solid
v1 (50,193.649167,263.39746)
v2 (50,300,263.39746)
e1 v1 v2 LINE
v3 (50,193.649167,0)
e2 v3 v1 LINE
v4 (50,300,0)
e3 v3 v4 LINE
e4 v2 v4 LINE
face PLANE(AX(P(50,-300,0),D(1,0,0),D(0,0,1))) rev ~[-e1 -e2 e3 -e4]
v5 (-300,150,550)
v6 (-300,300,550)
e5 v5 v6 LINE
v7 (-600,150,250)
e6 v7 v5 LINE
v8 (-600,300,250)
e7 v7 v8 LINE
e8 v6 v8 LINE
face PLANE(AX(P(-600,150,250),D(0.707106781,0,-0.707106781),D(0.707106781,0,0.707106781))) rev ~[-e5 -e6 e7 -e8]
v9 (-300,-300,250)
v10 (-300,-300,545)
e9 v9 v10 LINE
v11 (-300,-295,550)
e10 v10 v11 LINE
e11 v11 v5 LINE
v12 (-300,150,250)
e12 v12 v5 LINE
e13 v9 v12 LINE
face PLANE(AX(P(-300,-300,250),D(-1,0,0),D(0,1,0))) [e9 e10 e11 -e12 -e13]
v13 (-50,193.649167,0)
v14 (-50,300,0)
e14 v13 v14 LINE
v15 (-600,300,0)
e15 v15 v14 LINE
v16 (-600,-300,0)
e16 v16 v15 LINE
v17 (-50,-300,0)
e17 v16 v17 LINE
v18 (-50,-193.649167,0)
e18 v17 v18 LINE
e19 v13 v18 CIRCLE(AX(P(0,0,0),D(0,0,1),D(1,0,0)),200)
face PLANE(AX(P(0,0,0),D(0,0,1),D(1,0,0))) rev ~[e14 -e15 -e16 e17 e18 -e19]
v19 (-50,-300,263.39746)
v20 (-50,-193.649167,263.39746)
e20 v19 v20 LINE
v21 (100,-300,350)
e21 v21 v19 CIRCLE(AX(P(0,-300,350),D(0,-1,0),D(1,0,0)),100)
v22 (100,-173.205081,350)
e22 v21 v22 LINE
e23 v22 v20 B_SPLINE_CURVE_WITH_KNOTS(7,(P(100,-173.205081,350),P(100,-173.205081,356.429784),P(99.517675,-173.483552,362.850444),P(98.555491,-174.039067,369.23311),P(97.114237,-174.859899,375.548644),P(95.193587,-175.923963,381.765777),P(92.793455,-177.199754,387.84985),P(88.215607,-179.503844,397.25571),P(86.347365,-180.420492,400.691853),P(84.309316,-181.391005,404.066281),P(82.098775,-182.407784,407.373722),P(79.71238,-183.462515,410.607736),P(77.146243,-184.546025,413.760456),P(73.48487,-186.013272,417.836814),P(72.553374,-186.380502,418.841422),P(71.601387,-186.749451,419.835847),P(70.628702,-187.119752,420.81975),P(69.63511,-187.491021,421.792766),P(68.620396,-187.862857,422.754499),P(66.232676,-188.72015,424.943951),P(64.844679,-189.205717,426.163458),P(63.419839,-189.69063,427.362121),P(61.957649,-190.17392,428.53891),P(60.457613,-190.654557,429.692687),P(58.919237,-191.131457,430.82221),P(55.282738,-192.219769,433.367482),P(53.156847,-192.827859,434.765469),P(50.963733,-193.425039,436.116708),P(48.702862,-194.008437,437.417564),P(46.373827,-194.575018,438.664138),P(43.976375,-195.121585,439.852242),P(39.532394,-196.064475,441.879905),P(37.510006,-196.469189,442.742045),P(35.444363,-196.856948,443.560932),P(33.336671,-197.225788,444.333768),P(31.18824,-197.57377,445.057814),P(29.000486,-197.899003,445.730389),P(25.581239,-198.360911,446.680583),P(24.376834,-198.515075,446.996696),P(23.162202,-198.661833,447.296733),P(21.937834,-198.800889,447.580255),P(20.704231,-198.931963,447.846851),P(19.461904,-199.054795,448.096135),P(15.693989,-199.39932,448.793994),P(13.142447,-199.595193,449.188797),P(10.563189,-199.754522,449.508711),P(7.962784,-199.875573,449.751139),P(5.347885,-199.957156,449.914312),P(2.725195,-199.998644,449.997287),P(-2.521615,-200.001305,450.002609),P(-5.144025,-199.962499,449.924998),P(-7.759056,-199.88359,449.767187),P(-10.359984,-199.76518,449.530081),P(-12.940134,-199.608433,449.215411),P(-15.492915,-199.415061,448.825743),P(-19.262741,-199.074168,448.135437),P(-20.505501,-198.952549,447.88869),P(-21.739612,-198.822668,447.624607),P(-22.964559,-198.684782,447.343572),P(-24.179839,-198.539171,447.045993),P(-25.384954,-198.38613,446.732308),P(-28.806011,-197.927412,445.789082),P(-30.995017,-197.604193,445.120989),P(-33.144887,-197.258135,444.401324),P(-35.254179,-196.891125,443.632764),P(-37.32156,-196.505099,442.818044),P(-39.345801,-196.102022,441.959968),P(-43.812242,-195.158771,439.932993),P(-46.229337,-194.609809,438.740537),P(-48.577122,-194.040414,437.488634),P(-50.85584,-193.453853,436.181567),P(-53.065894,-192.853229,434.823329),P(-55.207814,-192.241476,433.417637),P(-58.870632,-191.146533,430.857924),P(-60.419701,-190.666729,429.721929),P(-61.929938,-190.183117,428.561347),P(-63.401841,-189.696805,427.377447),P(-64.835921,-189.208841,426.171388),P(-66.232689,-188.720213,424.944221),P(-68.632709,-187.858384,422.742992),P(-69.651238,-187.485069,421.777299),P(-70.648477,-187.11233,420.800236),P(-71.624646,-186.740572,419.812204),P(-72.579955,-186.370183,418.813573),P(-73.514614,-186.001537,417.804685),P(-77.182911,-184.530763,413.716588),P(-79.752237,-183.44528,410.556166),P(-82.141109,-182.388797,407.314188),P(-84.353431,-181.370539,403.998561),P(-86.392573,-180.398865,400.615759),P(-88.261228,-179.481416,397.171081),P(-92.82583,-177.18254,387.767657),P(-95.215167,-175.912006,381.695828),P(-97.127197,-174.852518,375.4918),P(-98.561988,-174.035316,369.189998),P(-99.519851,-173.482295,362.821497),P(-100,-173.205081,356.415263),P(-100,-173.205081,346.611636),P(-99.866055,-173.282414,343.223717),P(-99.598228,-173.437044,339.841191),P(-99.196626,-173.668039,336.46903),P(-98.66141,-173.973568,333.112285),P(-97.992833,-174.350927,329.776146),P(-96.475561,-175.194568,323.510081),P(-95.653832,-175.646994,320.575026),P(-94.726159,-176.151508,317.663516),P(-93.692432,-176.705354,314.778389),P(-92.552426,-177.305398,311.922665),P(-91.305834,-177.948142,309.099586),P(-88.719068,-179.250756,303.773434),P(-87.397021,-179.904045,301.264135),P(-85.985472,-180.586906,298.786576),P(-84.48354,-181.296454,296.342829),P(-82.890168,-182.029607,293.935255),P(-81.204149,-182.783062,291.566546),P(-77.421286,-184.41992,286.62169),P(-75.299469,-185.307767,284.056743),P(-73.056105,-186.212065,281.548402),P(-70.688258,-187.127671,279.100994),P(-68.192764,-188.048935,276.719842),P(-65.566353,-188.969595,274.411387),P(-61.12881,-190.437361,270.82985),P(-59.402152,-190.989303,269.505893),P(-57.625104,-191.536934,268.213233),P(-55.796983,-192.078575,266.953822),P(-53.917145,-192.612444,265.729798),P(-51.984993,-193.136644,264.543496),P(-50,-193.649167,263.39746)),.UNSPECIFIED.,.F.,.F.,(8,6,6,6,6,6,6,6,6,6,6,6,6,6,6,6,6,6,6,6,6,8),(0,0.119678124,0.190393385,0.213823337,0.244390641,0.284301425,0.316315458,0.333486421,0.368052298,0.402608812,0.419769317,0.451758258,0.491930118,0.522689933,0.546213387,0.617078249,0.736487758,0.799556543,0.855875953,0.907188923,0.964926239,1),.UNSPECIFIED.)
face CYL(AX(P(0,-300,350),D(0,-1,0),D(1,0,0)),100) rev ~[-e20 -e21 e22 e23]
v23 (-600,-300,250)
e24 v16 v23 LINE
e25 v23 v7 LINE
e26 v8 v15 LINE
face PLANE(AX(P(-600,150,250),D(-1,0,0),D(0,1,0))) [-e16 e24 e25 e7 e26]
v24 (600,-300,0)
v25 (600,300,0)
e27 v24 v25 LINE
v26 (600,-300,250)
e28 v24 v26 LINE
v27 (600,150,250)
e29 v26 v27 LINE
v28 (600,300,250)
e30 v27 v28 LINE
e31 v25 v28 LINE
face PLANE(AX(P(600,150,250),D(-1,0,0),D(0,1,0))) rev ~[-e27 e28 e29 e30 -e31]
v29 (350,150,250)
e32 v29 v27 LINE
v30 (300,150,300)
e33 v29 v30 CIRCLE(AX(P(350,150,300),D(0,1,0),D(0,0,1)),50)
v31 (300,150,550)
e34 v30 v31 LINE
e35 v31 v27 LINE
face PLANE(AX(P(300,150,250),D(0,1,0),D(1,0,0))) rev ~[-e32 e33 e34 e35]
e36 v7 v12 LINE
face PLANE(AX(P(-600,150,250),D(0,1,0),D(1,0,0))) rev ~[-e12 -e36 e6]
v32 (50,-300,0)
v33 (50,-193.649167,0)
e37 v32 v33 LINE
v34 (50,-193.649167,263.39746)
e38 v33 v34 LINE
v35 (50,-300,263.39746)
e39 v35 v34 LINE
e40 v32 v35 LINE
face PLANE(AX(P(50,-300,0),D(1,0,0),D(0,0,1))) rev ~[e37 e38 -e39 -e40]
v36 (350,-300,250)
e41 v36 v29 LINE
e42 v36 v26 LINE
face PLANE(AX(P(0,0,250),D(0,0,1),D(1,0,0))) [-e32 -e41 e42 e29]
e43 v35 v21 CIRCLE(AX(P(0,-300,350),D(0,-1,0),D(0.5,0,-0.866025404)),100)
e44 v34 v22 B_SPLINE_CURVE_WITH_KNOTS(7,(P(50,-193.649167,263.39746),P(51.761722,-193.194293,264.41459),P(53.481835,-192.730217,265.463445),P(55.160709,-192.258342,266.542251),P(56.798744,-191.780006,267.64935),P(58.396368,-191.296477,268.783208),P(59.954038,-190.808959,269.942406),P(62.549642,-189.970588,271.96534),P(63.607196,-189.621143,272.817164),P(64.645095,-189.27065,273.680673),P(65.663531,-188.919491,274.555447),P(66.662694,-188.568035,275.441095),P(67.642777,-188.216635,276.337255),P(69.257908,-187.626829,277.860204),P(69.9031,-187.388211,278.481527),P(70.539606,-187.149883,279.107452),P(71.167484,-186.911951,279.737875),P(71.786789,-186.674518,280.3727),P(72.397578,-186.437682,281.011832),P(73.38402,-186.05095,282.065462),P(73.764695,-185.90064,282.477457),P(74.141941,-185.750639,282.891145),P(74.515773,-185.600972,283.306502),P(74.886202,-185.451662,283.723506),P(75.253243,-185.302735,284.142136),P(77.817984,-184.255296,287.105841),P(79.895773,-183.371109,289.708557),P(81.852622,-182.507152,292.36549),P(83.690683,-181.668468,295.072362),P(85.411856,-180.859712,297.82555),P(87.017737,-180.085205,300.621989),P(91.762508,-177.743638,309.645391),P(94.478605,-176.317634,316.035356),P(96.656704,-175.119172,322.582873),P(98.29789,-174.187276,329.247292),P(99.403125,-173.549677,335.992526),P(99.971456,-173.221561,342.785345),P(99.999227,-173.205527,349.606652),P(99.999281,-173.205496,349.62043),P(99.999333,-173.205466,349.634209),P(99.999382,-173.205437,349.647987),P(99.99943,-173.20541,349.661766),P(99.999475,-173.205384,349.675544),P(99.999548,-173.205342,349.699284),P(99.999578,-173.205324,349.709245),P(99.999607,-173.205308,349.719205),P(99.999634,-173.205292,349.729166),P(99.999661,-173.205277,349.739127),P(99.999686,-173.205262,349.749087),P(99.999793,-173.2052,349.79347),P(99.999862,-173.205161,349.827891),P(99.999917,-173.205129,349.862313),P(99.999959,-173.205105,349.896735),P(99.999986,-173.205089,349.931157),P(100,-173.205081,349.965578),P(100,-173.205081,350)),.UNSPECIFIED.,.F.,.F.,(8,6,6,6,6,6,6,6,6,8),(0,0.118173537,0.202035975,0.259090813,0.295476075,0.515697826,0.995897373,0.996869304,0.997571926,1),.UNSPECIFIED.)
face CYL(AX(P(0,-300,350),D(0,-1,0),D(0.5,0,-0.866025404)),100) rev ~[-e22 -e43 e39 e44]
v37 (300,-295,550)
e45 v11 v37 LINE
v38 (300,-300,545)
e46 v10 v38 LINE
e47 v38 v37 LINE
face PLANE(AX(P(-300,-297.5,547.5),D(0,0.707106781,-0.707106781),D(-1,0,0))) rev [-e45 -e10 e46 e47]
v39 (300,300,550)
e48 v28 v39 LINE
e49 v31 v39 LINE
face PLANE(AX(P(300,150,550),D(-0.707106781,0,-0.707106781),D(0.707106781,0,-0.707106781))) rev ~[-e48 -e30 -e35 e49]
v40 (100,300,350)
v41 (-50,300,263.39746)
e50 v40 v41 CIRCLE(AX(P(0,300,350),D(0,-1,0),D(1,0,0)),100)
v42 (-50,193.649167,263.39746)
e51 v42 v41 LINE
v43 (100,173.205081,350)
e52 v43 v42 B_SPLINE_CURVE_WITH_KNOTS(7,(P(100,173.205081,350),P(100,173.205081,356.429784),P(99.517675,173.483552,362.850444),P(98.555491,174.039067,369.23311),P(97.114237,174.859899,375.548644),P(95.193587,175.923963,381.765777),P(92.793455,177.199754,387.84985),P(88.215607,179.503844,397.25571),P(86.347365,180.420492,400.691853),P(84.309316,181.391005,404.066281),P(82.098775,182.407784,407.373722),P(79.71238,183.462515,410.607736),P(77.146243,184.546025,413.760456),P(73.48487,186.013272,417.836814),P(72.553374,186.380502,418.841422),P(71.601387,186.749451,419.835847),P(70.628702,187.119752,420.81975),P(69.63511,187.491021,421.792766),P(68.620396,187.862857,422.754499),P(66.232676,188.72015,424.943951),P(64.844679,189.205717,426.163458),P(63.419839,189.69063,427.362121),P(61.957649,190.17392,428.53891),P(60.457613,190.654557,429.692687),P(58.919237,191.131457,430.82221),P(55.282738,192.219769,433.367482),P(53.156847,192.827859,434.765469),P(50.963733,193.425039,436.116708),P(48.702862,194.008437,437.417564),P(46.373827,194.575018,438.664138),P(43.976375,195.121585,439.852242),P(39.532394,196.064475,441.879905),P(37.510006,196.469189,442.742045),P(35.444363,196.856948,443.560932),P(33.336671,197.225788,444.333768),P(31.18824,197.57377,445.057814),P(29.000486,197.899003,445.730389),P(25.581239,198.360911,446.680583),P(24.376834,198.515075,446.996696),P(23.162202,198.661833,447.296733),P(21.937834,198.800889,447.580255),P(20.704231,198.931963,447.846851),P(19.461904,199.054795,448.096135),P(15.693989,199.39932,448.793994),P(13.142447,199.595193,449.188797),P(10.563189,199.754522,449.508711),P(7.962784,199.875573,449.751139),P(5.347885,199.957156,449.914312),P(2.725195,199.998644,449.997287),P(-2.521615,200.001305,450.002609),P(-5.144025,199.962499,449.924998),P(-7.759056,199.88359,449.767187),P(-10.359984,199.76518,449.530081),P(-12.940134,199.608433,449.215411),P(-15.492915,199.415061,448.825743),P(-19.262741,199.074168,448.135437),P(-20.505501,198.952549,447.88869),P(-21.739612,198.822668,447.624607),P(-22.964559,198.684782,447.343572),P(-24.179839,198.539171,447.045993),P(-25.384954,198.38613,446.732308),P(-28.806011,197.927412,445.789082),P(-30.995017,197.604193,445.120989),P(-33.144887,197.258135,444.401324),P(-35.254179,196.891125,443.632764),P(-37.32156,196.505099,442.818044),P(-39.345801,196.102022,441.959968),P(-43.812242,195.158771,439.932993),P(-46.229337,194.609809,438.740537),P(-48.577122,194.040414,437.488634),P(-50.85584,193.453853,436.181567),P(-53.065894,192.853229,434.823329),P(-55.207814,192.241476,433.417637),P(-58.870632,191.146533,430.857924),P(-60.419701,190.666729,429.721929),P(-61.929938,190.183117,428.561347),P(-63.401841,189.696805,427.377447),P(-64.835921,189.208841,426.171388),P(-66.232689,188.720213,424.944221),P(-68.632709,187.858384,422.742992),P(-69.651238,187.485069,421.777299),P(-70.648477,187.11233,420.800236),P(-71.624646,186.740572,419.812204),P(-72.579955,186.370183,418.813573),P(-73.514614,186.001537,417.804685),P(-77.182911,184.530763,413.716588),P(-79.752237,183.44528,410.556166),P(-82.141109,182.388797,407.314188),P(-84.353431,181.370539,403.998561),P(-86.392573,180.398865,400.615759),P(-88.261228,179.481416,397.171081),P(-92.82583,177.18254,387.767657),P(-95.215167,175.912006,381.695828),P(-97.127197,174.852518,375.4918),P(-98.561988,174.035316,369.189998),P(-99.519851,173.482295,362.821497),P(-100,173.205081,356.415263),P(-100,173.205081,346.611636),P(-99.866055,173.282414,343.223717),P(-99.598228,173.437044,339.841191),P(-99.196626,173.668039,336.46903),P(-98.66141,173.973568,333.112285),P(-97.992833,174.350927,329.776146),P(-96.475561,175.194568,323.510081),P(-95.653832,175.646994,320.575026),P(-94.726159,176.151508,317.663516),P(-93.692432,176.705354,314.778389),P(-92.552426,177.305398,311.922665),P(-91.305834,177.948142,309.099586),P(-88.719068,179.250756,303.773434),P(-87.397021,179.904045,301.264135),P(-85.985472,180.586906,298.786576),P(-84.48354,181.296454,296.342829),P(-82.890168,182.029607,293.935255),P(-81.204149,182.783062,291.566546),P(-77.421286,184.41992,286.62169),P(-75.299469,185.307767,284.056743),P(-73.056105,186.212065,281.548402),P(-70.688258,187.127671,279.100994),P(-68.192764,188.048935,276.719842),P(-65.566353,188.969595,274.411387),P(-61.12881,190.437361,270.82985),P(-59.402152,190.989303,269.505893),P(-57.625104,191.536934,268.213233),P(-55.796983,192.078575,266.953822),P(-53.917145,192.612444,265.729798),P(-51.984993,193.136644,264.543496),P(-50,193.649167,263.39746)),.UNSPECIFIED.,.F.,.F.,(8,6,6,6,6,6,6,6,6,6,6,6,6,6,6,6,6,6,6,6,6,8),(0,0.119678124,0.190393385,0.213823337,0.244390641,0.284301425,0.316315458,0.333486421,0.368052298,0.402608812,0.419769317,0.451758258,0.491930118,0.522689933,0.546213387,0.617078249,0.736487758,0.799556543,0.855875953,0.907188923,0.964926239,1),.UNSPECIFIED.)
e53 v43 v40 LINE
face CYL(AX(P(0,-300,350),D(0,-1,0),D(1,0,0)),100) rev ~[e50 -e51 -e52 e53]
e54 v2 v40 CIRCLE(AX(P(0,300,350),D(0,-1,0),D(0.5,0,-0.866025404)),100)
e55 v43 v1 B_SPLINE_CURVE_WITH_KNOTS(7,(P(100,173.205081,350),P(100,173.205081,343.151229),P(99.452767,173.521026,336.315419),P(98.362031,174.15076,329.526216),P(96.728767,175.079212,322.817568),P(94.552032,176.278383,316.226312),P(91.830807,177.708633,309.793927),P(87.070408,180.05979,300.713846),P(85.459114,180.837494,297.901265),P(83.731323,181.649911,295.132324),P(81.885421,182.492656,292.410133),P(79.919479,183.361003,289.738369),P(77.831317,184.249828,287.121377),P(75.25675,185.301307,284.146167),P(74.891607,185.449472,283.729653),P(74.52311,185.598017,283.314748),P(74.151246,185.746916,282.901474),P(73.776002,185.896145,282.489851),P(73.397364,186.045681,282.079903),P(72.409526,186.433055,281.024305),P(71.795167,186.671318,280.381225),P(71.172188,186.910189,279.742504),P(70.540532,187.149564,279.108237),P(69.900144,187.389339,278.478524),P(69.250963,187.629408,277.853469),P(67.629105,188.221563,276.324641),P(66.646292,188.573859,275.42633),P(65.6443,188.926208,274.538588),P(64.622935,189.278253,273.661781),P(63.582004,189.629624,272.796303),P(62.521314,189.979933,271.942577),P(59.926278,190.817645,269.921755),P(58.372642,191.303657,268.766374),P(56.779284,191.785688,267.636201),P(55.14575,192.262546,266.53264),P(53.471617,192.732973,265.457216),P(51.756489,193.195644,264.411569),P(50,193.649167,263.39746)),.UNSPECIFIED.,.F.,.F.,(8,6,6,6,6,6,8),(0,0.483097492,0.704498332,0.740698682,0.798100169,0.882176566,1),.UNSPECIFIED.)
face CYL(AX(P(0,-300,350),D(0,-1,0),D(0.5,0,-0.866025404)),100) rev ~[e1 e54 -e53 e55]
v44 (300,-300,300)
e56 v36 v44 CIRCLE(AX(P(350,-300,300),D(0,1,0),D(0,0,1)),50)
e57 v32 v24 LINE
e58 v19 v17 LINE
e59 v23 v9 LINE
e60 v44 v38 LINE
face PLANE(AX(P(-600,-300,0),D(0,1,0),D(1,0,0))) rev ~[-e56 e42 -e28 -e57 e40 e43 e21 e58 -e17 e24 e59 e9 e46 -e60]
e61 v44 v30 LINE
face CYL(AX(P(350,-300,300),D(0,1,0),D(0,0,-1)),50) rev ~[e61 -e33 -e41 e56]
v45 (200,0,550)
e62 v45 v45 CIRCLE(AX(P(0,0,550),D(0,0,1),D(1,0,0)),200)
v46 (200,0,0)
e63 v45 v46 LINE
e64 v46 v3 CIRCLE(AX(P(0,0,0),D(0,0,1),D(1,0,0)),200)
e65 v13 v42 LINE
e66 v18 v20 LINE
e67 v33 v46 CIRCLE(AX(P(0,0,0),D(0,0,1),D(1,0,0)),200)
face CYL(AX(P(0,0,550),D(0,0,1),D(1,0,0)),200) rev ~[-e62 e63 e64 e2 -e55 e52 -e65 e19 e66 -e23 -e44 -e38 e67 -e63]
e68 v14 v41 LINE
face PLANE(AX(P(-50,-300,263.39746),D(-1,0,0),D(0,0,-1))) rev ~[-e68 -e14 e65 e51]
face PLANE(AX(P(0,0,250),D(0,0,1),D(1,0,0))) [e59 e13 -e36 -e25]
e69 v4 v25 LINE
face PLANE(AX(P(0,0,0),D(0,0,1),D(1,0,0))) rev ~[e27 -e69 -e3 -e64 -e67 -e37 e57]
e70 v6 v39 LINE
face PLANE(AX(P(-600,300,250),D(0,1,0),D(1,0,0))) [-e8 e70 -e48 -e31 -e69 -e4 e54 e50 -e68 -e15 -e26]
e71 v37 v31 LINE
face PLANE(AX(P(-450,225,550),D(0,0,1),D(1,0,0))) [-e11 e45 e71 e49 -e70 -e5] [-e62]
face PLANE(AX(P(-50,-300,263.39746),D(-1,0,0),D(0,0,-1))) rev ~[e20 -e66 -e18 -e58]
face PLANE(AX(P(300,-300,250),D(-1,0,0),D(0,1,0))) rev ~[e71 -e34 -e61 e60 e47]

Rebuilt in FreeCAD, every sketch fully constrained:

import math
import FreeCAD as App
import Part
import Sketcher
from FreeCAD import Vector


def edges_at(feature, points):
    """Names of the edges that pass closest to the given points."""
    edges = feature.Shape.Edges
    near = lambda p: min(range(len(edges)), key=lambda i: edges[i].distToShape(Part.Vertex(*p))[0])
    return sorted({f"Edge{near(p) + 1}" for p in points})


def add_polygon(sketch, points):
    """Adds a closed chain of lines whose ends are joined by coincident constraints."""
    first, n = sketch.GeometryCount, len(points)
    for a, b in zip(points, points[1:] + points[:1]):
        sketch.addGeometry(Part.LineSegment(App.Vector(*a, 0), App.Vector(*b, 0)), False)
    for i in range(n):
        sketch.addConstraint(Sketcher.Constraint("Coincident", first + i, 2, first + (i + 1) % n, 1))

doc = App.newDocument("Part")
body = doc.addObject("PartDesign::Body", "Body")

sketch1 = body.newObject("Sketcher::SketchObject", "Sketch")
sketch1.AttachmentSupport = (doc.getObject("XY_Plane"), [""])
sketch1.MapMode = "FlatFace"
add_polygon(sketch1, [(-600, 300), (-600, -300), (600, -300), (600, 300)])
sketch1.addConstraint([
    Sketcher.Constraint("Vertical", 0),
    Sketcher.Constraint("Horizontal", 1),
    Sketcher.Constraint("Vertical", 2),
    Sketcher.Constraint("Horizontal", 3),
    Sketcher.Constraint("Symmetric", 0, 2, 2, 2, -1, 1),
    Sketcher.Constraint("DistanceX", 1, 1, 1, 2, 1200.0),
    Sketcher.Constraint("DistanceY", 0, 2, 0, 1, 600.0),
])
pad1 = body.newObject("PartDesign::Pad", "Pad")
pad1.Profile = sketch1
pad1.Length = 250

sketch2 = body.newObject("Sketcher::SketchObject", "Sketch001")
sketch2.AttachmentSupport = (doc.getObject("XY_Plane"), [""])
sketch2.MapMode = "FlatFace"
sketch2.AttachmentOffset = App.Placement(Vector(0, 0, 250), App.Rotation())
add_polygon(sketch2, [(-300, 300), (-300, -300), (300, -300), (300, 300)])
sketch2.addConstraint([
    Sketcher.Constraint("Vertical", 0),
    Sketcher.Constraint("Horizontal", 1),
    Sketcher.Constraint("Vertical", 2),
    Sketcher.Constraint("Horizontal", 3),
    Sketcher.Constraint("Symmetric", 0, 2, 2, 2, -1, 1),
    Sketcher.Constraint("Equal", 3, 0),
    Sketcher.Constraint("DistanceX", 1, 1, 1, 2, 600.0),
])
pad2 = body.newObject("PartDesign::Pad", "Pad001")
pad2.Profile = sketch2
pad2.Length = 300

sketch3 = body.newObject("Sketcher::SketchObject", "Sketch002")
sketch3.AttachmentSupport = (doc.getObject("XY_Plane"), [""])
sketch3.MapMode = "FlatFace"
sketch3.AttachmentOffset = App.Placement(Vector(0, 0, 550), App.Rotation())
sketch3.addGeometry(Part.Circle(Vector(0, 0, 0), Vector(0, 0, 1), 200), False)
sketch3.addConstraint([
    Sketcher.Constraint("Coincident", 0, 3, -1, 1),
    Sketcher.Constraint("Diameter", 0, 400.0),
])
pocket1 = body.newObject("PartDesign::Pocket", "Pocket")
pocket1.Profile = sketch3
pocket1.Type = "ThroughAll"

sketch4 = body.newObject("Sketcher::SketchObject", "Sketch003")
sketch4.AttachmentSupport = (doc.getObject("XY_Plane"), [""])
sketch4.MapMode = "FlatFace"
sketch4.AttachmentOffset = App.Placement(Vector(0, 0, 250), App.Rotation())
add_polygon(sketch4, [(300, 300), (300, 150), (600, 150), (600, 300)])
sketch4.addConstraint([
    Sketcher.Constraint("Vertical", 0),
    Sketcher.Constraint("Horizontal", 1),
    Sketcher.Constraint("Vertical", 2),
    Sketcher.Constraint("Horizontal", 3),
    Sketcher.Constraint("DistanceX", 1, 1, 1, 2, 300.0),
    Sketcher.Constraint("DistanceY", 0, 2, 0, 1, 150.0),
    Sketcher.Constraint("DistanceX", -1, 1, 0, 2, 300.0),
    Sketcher.Constraint("DistanceY", -1, 1, 0, 2, 150.0),
])
pad3 = body.newObject("PartDesign::Pad", "Pad002")
pad3.Profile = sketch4
pad3.Length = 300

sketch5 = body.newObject("Sketcher::SketchObject", "Sketch004")
sketch5.AttachmentSupport = (doc.getObject("XY_Plane"), [""])
sketch5.MapMode = "FlatFace"
sketch5.AttachmentOffset = App.Placement(Vector(0, 0, 250), App.Rotation())
add_polygon(sketch5, [(-600, 300), (-600, 150), (-300, 150), (-300, 300)])
sketch5.addConstraint([
    Sketcher.Constraint("Vertical", 0),
    Sketcher.Constraint("Horizontal", 1),
    Sketcher.Constraint("Vertical", 2),
    Sketcher.Constraint("Horizontal", 3),
    Sketcher.Constraint("DistanceX", 1, 1, 1, 2, 300.0),
    Sketcher.Constraint("DistanceY", 0, 2, 0, 1, 150.0),
    Sketcher.Constraint("DistanceX", 0, 2, -1, 1, 600.0),
    Sketcher.Constraint("DistanceY", -1, 1, 0, 2, 150.0),
])
pad4 = body.newObject("PartDesign::Pad", "Pad003")
pad4.Profile = sketch5
pad4.Length = 300

sketch6 = body.newObject("Sketcher::SketchObject", "Sketch005")
sketch6.AttachmentSupport = (doc.getObject("XZ_Plane"), [""])
sketch6.MapMode = "FlatFace"
sketch6.AttachmentOffset = App.Placement(Vector(0, 0, 300), App.Rotation())
sketch6.addGeometry([
    Part.ArcOfCircle(Part.Circle(Vector(0, 350, 0), Vector(0, 0, 1), 100), math.radians(-60), math.radians(0)),
    Part.ArcOfCircle(Part.Circle(Vector(0, 350, 0), Vector(0, 0, 1), 100), math.radians(0), math.radians(240)),
    Part.LineSegment(Vector(-50, 263, 0), Vector(-50, 0, 0)),
    Part.LineSegment(Vector(-50, 0, 0), Vector(50, 0, 0)),
    Part.LineSegment(Vector(50, 0, 0), Vector(50, 263, 0)),
], False)
sketch6.addConstraint([
    Sketcher.Constraint("Tangent", 0, 2, 1, 1),
    Sketcher.Constraint("Coincident", 1, 2, 2, 1),
    Sketcher.Constraint("Coincident", 2, 2, 3, 1),
    Sketcher.Constraint("Coincident", 3, 2, 4, 1),
    Sketcher.Constraint("Coincident", 4, 2, 0, 1),
    Sketcher.Constraint("Vertical", 2),
    Sketcher.Constraint("Horizontal", 3),
    Sketcher.Constraint("Vertical", 4),
    Sketcher.Constraint("Equal", 0, 1),
    Sketcher.Constraint("Symmetric", 2, 2, 3, 2, -1, 1),
    Sketcher.Constraint("PointOnObject", 0, 3, -2),
    Sketcher.Constraint("Horizontal", 1, 3, 0, 2),
    Sketcher.Constraint("Radius", 0, 100.0),
    Sketcher.Constraint("DistanceX", 3, 1, 3, 2, 100.0),
    Sketcher.Constraint("DistanceY", -1, 1, 0, 3, 350.0),
])
pocket2 = body.newObject("PartDesign::Pocket", "Pocket001")
pocket2.Profile = sketch6
pocket2.Type = "ThroughAll"

sketch7 = body.newObject("Sketcher::SketchObject", "Sketch006")
sketch7.AttachmentSupport = (doc.getObject("XZ_Plane"), [""])
sketch7.MapMode = "FlatFace"
sketch7.AttachmentOffset = App.Placement(Vector(0, 0, -150), App.Rotation())
add_polygon(sketch7, [(600, 550), (300, 550), (600, 250)])
sketch7.addConstraint([
    Sketcher.Constraint("Horizontal", 0),
    Sketcher.Constraint("Vertical", 2),
    Sketcher.Constraint("Equal", 0, 2),
    Sketcher.Constraint("DistanceX", 0, 2, 0, 1, 300.0),
    Sketcher.Constraint("DistanceX", -1, 1, 0, 2, 300.0),
    Sketcher.Constraint("DistanceY", -1, 1, 0, 2, 550.0),
])
pocket3 = body.newObject("PartDesign::Pocket", "Pocket002")
pocket3.Profile = sketch7
pocket3.Type = "ThroughAll"

sketch8 = body.newObject("Sketcher::SketchObject", "Sketch007")
sketch8.AttachmentSupport = (doc.getObject("XZ_Plane"), [""])
sketch8.MapMode = "FlatFace"
sketch8.AttachmentOffset = App.Placement(Vector(0, 0, -150), App.Rotation())
add_polygon(sketch8, [(-600, 250), (-300, 550), (-600, 550)])
sketch8.addConstraint([
    Sketcher.Constraint("Horizontal", 1),
    Sketcher.Constraint("Vertical", 2),
    Sketcher.Constraint("Equal", 1, 2),
    Sketcher.Constraint("DistanceX", 1, 2, 1, 1, 300.0),
    Sketcher.Constraint("DistanceX", 0, 2, -1, 1, 300.0),
    Sketcher.Constraint("DistanceY", -1, 1, 0, 2, 550.0),
])
pocket4 = body.newObject("PartDesign::Pocket", "Pocket003")
pocket4.Profile = sketch8
pocket4.Type = "ThroughAll"
doc.recompute()

fillet = body.newObject("PartDesign::Fillet", "Fillet")
fillet.Base = (pocket4, edges_at(pocket4, [(300, -75, 250)]))
fillet.Radius = 50
doc.recompute()

chamfer = body.newObject("PartDesign::Chamfer", "Chamfer")
chamfer.Base = (fillet, edges_at(fillet, [(0, -300, 550)]))
chamfer.ChamferType = "Two distances"
chamfer.Size = 5
chamfer.Size2 = 5

doc.recompute()
